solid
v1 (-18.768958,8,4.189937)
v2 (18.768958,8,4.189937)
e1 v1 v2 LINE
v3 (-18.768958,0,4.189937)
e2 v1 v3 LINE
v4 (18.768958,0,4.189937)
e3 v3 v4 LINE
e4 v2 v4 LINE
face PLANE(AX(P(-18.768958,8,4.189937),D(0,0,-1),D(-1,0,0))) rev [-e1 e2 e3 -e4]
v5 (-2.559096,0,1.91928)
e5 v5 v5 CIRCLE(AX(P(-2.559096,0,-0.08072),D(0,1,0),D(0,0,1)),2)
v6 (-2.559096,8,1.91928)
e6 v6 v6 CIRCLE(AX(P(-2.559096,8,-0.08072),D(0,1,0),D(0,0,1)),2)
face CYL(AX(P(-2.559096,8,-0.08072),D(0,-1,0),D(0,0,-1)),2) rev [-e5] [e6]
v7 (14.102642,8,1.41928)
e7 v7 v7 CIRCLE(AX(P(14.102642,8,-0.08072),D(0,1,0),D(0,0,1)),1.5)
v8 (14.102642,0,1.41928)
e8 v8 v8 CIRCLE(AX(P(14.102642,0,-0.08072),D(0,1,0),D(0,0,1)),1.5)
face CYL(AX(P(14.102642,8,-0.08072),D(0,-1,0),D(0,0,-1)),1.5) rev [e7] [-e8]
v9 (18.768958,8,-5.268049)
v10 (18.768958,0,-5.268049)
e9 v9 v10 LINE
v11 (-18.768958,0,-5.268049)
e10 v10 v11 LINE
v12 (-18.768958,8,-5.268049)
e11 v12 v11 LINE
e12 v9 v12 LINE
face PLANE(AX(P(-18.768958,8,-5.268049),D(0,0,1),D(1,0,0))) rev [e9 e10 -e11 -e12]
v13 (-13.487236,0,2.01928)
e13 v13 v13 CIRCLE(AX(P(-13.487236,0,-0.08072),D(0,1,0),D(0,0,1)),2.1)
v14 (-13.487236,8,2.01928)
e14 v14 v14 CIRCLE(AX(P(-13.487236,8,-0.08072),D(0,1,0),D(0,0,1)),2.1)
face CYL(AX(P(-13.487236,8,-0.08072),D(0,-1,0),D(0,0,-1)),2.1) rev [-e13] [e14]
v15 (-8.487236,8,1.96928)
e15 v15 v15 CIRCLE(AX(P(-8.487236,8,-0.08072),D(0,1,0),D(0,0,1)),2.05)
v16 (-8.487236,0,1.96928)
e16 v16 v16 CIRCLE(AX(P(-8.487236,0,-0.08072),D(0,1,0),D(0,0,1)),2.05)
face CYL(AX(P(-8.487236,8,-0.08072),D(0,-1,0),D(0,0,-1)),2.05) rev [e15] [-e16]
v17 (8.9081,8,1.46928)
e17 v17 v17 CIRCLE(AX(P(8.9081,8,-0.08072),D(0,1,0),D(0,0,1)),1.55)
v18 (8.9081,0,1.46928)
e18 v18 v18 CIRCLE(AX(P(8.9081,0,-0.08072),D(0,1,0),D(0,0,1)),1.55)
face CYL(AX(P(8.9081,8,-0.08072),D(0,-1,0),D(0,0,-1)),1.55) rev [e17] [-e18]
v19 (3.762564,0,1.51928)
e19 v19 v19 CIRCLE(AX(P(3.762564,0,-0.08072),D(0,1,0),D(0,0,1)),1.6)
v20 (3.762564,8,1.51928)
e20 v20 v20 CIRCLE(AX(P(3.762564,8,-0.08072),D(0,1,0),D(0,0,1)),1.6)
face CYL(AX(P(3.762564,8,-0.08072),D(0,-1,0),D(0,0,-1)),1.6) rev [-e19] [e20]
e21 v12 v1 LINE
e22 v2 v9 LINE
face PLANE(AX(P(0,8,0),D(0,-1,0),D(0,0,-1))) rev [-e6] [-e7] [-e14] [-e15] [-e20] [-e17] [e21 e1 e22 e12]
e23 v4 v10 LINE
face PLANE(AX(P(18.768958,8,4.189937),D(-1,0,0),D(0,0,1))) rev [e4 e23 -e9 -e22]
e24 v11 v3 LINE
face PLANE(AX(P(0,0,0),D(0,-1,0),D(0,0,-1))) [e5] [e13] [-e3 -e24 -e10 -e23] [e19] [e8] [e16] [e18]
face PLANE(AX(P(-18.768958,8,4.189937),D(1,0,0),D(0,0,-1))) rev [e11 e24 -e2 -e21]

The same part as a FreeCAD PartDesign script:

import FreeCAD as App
import Part
import Sketcher
from FreeCAD import Vector

doc = App.newDocument("Part")
params = doc.addObject("Spreadsheet::Sheet", "Params")
for row, (alias, value) in enumerate([
    ("sketch1_diameter", "4 mm"),
    ("sketch1_diameter2", "3 mm"),
    ("sketch1_diameter3", "4.2 mm"),
    ("sketch1_diameter4", "4.1 mm"),
    ("sketch1_diameter5", "3.2 mm"),
    ("pad1_length", "8 mm"),
], start=1):
    params.set(f"A{row}", alias)
    params.set(f"B{row}", "=" + value)
    params.setAlias(f"B{row}", alias)

body = doc.addObject("PartDesign::Body", "Body")

sketch1 = body.newObject("Sketcher::SketchObject", "Sketch")
sketch1.AttachmentSupport = (doc.getObject("XZ_Plane"), [""])
sketch1.MapMode = "FlatFace"
sketch1.addGeometry([
    Part.LineSegment(Vector(-18.8, -5.3, 0), Vector(-18.8, 4.2, 0)),
    Part.LineSegment(Vector(-18.8, 4.2, 0), Vector(18.8, 4.2, 0)),
    Part.LineSegment(Vector(18.8, 4.2, 0), Vector(18.8, -5.3, 0)),
    Part.LineSegment(Vector(18.8, -5.3, 0), Vector(-18.8, -5.3, 0)),
    Part.Circle(Vector(-13.5, -0.1, 0), Vector(0, 0, 1), 2.1),
    Part.Circle(Vector(-8.5, -0.1, 0), Vector(0, 0, 1), 2),
    Part.Circle(Vector(-2.6, -0.1, 0), Vector(0, 0, 1), 2),
    Part.Circle(Vector(3.8, -0.1, 0), Vector(0, 0, 1), 1.6),
    Part.Circle(Vector(8.9, -0.1, 0), Vector(0, 0, 1), 1.6),
    Part.Circle(Vector(14.1, -0.1, 0), Vector(0, 0, 1), 1.5),
], False)
sketch1.addConstraint([
    Sketcher.Constraint("Coincident", 0, 2, 1, 1),
    Sketcher.Constraint("Coincident", 1, 2, 2, 1),
    Sketcher.Constraint("Coincident", 2, 2, 3, 1),
    Sketcher.Constraint("Coincident", 3, 2, 0, 1),
    Sketcher.Constraint("Vertical", 0),
    Sketcher.Constraint("Horizontal", 1),
    Sketcher.Constraint("Vertical", 2),
    Sketcher.Constraint("Horizontal", 3),
    Sketcher.Constraint("Horizontal", 4, 3, 5, 3),
    Sketcher.Constraint("Horizontal", 5, 3, 6, 3),
    Sketcher.Constraint("Horizontal", 6, 3, 7, 3),
    Sketcher.Constraint("Horizontal", 7, 3, 8, 3),
    Sketcher.Constraint("Horizontal", 8, 3, 9, 3),
    Sketcher.Constraint("Diameter", 6, 4.0),
    Sketcher.Constraint("Diameter", 9, 3.0),
    Sketcher.Constraint("Diameter", 4, 4.2),
    Sketcher.Constraint("Diameter", 5, 4.1),
    Sketcher.Constraint("Diameter", 7, 3.2),
    Sketcher.Constraint("Diameter", 8, 3.1),
    Sketcher.Constraint("DistanceX", 4, 3, 5, 3, 5.0),
    Sketcher.Constraint("DistanceX", -1, 1, 8, 3, 8.9081),
    Sketcher.Constraint("DistanceX", 5, 3, 7, 3, 12.249799),
    Sketcher.Constraint("DistanceX", 1, 1, 1, 2, 37.537915),
    Sketcher.Constraint("DistanceY", 0, 1, 0, 2, 9.457986),
    Sketcher.Constraint("DistanceY", 4, 3, -1, 1, 0.08072),
    Sketcher.Constraint("DistanceY", 2, 2, -1, 1, 5.268049),
    Sketcher.Constraint("DistanceX", 5, 3, 6, 3, 5.92814),
    Sketcher.Constraint("DistanceX", 8, 3, 9, 3, 5.194542),
    Sketcher.Constraint("DistanceX", 7, 3, 9, 3, 10.340078),
    Sketcher.Constraint("DistanceX", 0, 2, 4, 3, 5.281722),
])
sketch1.setExpression("Constraints[13]", "Params.sketch1_diameter")
sketch1.setExpression("Constraints[14]", "Params.sketch1_diameter2")
sketch1.setExpression("Constraints[15]", "Params.sketch1_diameter3")
sketch1.setExpression("Constraints[16]", "Params.sketch1_diameter4")
sketch1.setExpression("Constraints[17]", "Params.sketch1_diameter5")
pad1 = body.newObject("PartDesign::Pad", "Pad")
pad1.Profile = sketch1
pad1.setExpression("Length", "Params.pad1_length")
pad1.Reversed = True

doc.recompute()
